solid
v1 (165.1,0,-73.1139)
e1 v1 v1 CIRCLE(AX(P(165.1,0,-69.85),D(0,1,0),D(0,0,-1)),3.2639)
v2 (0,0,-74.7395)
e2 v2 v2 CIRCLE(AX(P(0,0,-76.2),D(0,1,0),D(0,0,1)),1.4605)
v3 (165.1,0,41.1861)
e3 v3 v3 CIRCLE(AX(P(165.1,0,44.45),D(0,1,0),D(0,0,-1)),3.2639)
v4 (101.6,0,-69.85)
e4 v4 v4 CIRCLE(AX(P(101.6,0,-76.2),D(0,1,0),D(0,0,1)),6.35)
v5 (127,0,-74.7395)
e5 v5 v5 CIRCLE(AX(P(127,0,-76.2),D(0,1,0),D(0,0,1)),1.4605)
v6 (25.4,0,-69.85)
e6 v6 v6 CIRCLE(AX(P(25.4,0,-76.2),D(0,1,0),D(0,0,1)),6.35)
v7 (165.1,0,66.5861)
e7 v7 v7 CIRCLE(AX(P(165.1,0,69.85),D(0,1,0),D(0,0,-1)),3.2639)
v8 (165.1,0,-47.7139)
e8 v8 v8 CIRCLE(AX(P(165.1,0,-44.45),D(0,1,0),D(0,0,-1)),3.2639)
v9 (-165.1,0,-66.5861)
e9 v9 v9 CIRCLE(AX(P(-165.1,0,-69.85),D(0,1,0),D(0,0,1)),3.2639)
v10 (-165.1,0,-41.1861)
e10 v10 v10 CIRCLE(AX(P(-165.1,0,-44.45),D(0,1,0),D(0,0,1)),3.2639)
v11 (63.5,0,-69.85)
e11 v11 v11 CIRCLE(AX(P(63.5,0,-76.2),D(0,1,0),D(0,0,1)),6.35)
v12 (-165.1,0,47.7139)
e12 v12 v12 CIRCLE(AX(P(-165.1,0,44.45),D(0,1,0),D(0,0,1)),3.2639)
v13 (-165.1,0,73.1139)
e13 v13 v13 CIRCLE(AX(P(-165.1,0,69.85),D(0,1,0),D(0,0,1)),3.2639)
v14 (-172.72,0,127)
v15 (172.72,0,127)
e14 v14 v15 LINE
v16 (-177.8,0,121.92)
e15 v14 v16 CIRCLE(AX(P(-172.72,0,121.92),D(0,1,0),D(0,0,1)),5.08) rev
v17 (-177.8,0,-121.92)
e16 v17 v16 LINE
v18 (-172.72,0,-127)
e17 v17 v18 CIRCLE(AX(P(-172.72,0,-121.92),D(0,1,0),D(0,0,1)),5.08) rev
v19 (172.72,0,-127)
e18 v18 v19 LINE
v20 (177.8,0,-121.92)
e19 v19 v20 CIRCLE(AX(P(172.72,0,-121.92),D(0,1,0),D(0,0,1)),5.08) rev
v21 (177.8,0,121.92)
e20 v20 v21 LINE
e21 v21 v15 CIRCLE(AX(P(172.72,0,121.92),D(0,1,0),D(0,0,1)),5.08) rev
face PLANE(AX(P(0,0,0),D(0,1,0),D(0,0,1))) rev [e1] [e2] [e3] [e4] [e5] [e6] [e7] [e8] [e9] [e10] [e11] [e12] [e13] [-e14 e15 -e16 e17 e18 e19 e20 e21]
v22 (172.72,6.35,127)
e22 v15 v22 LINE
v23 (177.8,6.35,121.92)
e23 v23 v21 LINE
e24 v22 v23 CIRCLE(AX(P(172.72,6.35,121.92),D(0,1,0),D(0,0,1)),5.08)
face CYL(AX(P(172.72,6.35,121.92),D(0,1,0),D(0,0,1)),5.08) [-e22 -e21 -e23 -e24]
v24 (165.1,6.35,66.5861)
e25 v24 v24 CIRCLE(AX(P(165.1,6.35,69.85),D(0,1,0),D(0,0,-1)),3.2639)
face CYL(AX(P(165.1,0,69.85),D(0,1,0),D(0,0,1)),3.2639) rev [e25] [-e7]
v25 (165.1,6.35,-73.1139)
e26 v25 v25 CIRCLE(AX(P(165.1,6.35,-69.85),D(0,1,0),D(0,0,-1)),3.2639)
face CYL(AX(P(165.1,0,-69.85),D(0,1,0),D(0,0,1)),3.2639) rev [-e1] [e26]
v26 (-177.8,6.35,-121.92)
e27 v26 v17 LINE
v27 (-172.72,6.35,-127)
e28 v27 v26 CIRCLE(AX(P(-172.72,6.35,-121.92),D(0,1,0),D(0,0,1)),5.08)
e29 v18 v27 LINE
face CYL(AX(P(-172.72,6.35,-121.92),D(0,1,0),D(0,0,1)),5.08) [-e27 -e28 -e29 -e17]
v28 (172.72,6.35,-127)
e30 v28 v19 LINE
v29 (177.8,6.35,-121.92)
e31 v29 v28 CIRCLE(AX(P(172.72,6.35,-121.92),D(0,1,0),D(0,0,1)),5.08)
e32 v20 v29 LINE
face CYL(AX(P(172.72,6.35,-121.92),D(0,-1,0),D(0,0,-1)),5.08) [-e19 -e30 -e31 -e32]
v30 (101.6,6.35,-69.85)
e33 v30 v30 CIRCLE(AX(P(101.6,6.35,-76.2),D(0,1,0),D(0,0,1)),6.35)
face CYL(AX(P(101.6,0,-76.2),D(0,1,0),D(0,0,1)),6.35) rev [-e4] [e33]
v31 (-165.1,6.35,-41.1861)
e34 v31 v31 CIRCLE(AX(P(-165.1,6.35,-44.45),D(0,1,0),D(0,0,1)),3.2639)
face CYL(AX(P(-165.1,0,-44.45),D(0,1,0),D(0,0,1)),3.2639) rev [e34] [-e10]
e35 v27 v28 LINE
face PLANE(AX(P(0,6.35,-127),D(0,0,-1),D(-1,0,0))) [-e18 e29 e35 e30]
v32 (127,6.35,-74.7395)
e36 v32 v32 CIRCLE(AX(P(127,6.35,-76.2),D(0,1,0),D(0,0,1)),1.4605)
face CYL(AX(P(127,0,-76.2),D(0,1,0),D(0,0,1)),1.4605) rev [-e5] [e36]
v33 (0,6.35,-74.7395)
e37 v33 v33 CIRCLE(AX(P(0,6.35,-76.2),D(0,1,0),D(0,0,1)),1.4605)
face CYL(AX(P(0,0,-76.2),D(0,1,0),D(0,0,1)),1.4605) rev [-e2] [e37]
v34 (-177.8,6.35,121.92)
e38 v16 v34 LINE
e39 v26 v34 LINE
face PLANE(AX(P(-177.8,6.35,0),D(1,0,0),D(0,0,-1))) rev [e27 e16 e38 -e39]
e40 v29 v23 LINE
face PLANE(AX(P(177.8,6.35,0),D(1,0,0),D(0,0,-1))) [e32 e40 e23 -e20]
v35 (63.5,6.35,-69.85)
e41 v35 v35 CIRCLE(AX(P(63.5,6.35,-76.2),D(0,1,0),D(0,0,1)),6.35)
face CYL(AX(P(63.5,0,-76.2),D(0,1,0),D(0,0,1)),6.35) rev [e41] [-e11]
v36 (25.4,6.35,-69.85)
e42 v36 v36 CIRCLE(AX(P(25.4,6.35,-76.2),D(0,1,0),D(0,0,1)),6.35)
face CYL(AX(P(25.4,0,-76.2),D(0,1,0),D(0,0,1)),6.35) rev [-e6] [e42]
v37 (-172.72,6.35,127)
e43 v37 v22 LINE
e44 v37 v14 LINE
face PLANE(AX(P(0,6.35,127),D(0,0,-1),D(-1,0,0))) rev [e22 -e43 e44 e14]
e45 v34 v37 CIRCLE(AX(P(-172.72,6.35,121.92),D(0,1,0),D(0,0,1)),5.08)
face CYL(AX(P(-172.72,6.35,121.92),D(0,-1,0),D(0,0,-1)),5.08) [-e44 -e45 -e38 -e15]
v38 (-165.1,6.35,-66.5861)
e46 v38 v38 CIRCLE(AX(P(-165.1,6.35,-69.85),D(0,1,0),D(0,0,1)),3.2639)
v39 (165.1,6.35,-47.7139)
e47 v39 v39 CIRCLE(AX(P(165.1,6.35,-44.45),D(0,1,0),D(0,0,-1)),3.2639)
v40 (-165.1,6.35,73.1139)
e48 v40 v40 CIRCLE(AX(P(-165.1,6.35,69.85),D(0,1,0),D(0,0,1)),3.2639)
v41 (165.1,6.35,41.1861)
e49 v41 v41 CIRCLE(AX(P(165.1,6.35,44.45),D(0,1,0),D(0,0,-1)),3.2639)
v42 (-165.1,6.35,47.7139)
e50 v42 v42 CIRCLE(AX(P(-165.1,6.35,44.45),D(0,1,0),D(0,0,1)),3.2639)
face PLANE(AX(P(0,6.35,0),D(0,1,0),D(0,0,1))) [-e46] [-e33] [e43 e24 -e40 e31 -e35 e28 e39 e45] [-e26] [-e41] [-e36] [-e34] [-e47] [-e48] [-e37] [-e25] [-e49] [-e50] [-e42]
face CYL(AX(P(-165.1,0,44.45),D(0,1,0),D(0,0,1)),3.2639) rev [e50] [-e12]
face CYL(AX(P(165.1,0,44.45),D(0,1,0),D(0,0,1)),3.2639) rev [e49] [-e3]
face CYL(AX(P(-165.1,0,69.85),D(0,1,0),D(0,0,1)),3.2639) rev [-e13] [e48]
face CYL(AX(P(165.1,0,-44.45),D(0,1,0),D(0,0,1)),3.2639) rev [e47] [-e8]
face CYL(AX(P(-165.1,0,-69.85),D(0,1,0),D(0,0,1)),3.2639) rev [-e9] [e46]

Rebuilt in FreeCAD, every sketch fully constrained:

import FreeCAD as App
import Part
import Sketcher
Q = App.Units.Quantity


def edges_at(feature, points):
    """Names of the edges that pass closest to the given points."""
    edges = feature.Shape.Edges
    near = lambda p: min(range(len(edges)), key=lambda i: edges[i].distToShape(Part.Vertex(*p))[0])
    return sorted({f"Edge{near(p) + 1}" for p in points})


def add_polygon(sketch, points):
    """Adds a closed chain of lines whose ends are joined by coincident constraints."""
    first, n = sketch.GeometryCount, len(points)
    for a, b in zip(points, points[1:] + points[:1]):
        sketch.addGeometry(Part.LineSegment(App.Vector(*a, 0), App.Vector(*b, 0)), False)
    for i in range(n):
        sketch.addConstraint(Sketcher.Constraint("Coincident", first + i, 2, first + (i + 1) % n, 1))

doc = App.newDocument("Part")
body = doc.addObject("PartDesign::Body", "Body")

sketch1 = doc.addObject("Sketcher::SketchObject", "Sketch")
body.addObject(sketch1)
sketch1.AttachmentSupport = (doc.XZ_Plane, [""])
sketch1.MapMode = "FlatFace"
add_polygon(sketch1, [(-178, -127), (-178, 127), (178, 127), (178, -127)])
sketch1.addConstraint([
    Sketcher.Constraint("Vertical", 0),
    Sketcher.Constraint("Horizontal", 1),
    Sketcher.Constraint("Vertical", 2),
    Sketcher.Constraint("Horizontal", 3),
    Sketcher.Constraint("Symmetric", 0, 2, 2, 2, -1, 1),
    Sketcher.Constraint("DistanceX", 1, 1, 1, 2, Q("14 in")),
    Sketcher.Constraint("DistanceY", 0, 1, 0, 2, Q("10 in")),
])
pad1 = doc.addObject("PartDesign::Pad", "Pad")
body.addObject(pad1)
pad1.Profile = sketch1
pad1.Length = Q("0.25 in")
pad1.Reversed = True

sketch2 = doc.addObject("Sketcher::SketchObject", "Sketch001")
body.addObject(sketch2)
sketch2.AttachmentSupport = (doc.XZ_Plane, [""])
sketch2.MapMode = "FlatFace"
sketch2.AttachmentOffset = App.Placement(App.Vector(0, 0, -0.25 * 25.4), App.Rotation())
sketch2.addGeometry([
    Part.Circle(App.Vector(-165.1, -69.8, 0), App.Vector(0, 0, 1), 3.3),
    Part.Circle(App.Vector(-165.1, -44.5, 0), App.Vector(0, 0, 1), 3.3),
    Part.Circle(App.Vector(-165.1, 44.5, 0), App.Vector(0, 0, 1), 3.3),
    Part.Circle(App.Vector(-165.1, 69.8, 0), App.Vector(0, 0, 1), 3.3),
    Part.Circle(App.Vector(165.1, 69.8, 0), App.Vector(0, 0, 1), 3.3),
    Part.Circle(App.Vector(165.1, 44.5, 0), App.Vector(0, 0, 1), 3.3),
    Part.Circle(App.Vector(165.1, -44.5, 0), App.Vector(0, 0, 1), 3.3),
    Part.Circle(App.Vector(165.1, -69.8, 0), App.Vector(0, 0, 1), 3.3),
], False)
sketch2.addConstraint([
    Sketcher.Constraint("Equal", 0, 1),
    Sketcher.Constraint("Equal", 1, 2),
    Sketcher.Constraint("Equal", 2, 3),
    Sketcher.Constraint("Equal", 3, 4),
    Sketcher.Constraint("Equal", 4, 5),
    Sketcher.Constraint("Equal", 5, 6),
    Sketcher.Constraint("Equal", 6, 7),
    Sketcher.Constraint("Symmetric", 0, 3, 4, 3, -1, 1),
    Sketcher.Constraint("Symmetric", 1, 3, 5, 3, -1, 1),
    Sketcher.Constraint("Symmetric", 2, 3, 6, 3, -1, 1),
    Sketcher.Constraint("Symmetric", 3, 3, 7, 3, -1, 1),
    Sketcher.Constraint("Symmetric", 3, 3, 4, 3, -2),
    Sketcher.Constraint("Symmetric", 2, 3, 5, 3, -2),
    Sketcher.Constraint("Vertical", 0, 3, 1, 3),
    Sketcher.Constraint("Diameter", 0, Q("0.257 in")),
    Sketcher.Constraint("DistanceY", 0, 3, 1, 3, Q("1 in")),
    Sketcher.Constraint("DistanceX", 3, 3, 4, 3, Q("13 in")),
    Sketcher.Constraint("DistanceY", 1, 3, 2, 3, Q("3.5 in")),
])
pocket1 = doc.addObject("PartDesign::Pocket", "Pocket")
body.addObject(pocket1)
pocket1.Profile = sketch2
pocket1.Type = "ThroughAll"
pocket1.Reversed = True

sketch3 = doc.addObject("Sketcher::SketchObject", "Sketch002")
body.addObject(sketch3)
sketch3.AttachmentSupport = (doc.XZ_Plane, [""])
sketch3.MapMode = "FlatFace"
sketch3.AttachmentOffset = App.Placement(App.Vector(0, 0, -0.25 * 25.4), App.Rotation())
sketch3.addGeometry([
    Part.Circle(App.Vector(25, -76, 0), App.Vector(0, 0, 1), 6),
    Part.Circle(App.Vector(64, -76, 0), App.Vector(0, 0, 1), 6),
    Part.Circle(App.Vector(102, -76, 0), App.Vector(0, 0, 1), 6),
], False)
sketch3.addConstraint([
    Sketcher.Constraint("Equal", 0, 1),
    Sketcher.Constraint("Equal", 1, 2),
    Sketcher.Constraint("Horizontal", 0, 3, 1, 3),
    Sketcher.Constraint("Horizontal", 1, 3, 2, 3),
    Sketcher.Constraint("Diameter", 0, Q("0.5 in")),
    Sketcher.Constraint("DistanceX", -1, 1, 0, 3, Q("1 in")),
    Sketcher.Constraint("DistanceY", 0, 3, -1, 1, Q("3 in")),
    Sketcher.Constraint("DistanceX", -1, 1, 2, 3, Q("4 in")),
    Sketcher.Constraint("DistanceX", -1, 1, 1, 3, Q("2.5 in")),
])
pocket2 = doc.addObject("PartDesign::Pocket", "Pocket001")
body.addObject(pocket2)
pocket2.Profile = sketch3
pocket2.Type = "ThroughAll"
pocket2.Reversed = True

sketch4 = doc.addObject("Sketcher::SketchObject", "Sketch003")
body.addObject(sketch4)
sketch4.AttachmentSupport = (doc.XZ_Plane, [""])
sketch4.MapMode = "FlatFace"
sketch4.AttachmentOffset = App.Placement(App.Vector(0, 0, -0.25 * 25.4), App.Rotation())
sketch4.addGeometry([
    Part.Circle(App.Vector(127, -76.2, 0), App.Vector(0, 0, 1), 1.5),
    Part.Circle(App.Vector(0, -76.2, 0), App.Vector(0, 0, 1), 1.5),
], False)
sketch4.addConstraint([
    Sketcher.Constraint("Equal", 0, 1),
    Sketcher.Constraint("PointOnObject", 1, 3, -2),
    Sketcher.Constraint("Horizontal", 0, 3, 1, 3),
    Sketcher.Constraint("Diameter", 0, Q("0.115 in")),
    Sketcher.Constraint("DistanceX", -1, 1, 0, 3, Q("5 in")),
    Sketcher.Constraint("DistanceY", 0, 3, -1, 1, Q("3 in")),
])
pocket3 = doc.addObject("PartDesign::Pocket", "Pocket002")
body.addObject(pocket3)
pocket3.Profile = sketch4
pocket3.Type = "ThroughAll"
pocket3.Reversed = True
doc.recompute()

fillet = doc.addObject("PartDesign::Fillet", "Fillet")
body.addObject(fillet)
fillet.Base = (pocket3, edges_at(pocket3, [
    (177.8, 3.175, 127),
    (-177.8, 3.175, 127),
    (-177.8, 3.175, -127),
    (177.8, 3.175, -127),
]))
fillet.Radius = Q("0.2 in")

doc.recompute()
